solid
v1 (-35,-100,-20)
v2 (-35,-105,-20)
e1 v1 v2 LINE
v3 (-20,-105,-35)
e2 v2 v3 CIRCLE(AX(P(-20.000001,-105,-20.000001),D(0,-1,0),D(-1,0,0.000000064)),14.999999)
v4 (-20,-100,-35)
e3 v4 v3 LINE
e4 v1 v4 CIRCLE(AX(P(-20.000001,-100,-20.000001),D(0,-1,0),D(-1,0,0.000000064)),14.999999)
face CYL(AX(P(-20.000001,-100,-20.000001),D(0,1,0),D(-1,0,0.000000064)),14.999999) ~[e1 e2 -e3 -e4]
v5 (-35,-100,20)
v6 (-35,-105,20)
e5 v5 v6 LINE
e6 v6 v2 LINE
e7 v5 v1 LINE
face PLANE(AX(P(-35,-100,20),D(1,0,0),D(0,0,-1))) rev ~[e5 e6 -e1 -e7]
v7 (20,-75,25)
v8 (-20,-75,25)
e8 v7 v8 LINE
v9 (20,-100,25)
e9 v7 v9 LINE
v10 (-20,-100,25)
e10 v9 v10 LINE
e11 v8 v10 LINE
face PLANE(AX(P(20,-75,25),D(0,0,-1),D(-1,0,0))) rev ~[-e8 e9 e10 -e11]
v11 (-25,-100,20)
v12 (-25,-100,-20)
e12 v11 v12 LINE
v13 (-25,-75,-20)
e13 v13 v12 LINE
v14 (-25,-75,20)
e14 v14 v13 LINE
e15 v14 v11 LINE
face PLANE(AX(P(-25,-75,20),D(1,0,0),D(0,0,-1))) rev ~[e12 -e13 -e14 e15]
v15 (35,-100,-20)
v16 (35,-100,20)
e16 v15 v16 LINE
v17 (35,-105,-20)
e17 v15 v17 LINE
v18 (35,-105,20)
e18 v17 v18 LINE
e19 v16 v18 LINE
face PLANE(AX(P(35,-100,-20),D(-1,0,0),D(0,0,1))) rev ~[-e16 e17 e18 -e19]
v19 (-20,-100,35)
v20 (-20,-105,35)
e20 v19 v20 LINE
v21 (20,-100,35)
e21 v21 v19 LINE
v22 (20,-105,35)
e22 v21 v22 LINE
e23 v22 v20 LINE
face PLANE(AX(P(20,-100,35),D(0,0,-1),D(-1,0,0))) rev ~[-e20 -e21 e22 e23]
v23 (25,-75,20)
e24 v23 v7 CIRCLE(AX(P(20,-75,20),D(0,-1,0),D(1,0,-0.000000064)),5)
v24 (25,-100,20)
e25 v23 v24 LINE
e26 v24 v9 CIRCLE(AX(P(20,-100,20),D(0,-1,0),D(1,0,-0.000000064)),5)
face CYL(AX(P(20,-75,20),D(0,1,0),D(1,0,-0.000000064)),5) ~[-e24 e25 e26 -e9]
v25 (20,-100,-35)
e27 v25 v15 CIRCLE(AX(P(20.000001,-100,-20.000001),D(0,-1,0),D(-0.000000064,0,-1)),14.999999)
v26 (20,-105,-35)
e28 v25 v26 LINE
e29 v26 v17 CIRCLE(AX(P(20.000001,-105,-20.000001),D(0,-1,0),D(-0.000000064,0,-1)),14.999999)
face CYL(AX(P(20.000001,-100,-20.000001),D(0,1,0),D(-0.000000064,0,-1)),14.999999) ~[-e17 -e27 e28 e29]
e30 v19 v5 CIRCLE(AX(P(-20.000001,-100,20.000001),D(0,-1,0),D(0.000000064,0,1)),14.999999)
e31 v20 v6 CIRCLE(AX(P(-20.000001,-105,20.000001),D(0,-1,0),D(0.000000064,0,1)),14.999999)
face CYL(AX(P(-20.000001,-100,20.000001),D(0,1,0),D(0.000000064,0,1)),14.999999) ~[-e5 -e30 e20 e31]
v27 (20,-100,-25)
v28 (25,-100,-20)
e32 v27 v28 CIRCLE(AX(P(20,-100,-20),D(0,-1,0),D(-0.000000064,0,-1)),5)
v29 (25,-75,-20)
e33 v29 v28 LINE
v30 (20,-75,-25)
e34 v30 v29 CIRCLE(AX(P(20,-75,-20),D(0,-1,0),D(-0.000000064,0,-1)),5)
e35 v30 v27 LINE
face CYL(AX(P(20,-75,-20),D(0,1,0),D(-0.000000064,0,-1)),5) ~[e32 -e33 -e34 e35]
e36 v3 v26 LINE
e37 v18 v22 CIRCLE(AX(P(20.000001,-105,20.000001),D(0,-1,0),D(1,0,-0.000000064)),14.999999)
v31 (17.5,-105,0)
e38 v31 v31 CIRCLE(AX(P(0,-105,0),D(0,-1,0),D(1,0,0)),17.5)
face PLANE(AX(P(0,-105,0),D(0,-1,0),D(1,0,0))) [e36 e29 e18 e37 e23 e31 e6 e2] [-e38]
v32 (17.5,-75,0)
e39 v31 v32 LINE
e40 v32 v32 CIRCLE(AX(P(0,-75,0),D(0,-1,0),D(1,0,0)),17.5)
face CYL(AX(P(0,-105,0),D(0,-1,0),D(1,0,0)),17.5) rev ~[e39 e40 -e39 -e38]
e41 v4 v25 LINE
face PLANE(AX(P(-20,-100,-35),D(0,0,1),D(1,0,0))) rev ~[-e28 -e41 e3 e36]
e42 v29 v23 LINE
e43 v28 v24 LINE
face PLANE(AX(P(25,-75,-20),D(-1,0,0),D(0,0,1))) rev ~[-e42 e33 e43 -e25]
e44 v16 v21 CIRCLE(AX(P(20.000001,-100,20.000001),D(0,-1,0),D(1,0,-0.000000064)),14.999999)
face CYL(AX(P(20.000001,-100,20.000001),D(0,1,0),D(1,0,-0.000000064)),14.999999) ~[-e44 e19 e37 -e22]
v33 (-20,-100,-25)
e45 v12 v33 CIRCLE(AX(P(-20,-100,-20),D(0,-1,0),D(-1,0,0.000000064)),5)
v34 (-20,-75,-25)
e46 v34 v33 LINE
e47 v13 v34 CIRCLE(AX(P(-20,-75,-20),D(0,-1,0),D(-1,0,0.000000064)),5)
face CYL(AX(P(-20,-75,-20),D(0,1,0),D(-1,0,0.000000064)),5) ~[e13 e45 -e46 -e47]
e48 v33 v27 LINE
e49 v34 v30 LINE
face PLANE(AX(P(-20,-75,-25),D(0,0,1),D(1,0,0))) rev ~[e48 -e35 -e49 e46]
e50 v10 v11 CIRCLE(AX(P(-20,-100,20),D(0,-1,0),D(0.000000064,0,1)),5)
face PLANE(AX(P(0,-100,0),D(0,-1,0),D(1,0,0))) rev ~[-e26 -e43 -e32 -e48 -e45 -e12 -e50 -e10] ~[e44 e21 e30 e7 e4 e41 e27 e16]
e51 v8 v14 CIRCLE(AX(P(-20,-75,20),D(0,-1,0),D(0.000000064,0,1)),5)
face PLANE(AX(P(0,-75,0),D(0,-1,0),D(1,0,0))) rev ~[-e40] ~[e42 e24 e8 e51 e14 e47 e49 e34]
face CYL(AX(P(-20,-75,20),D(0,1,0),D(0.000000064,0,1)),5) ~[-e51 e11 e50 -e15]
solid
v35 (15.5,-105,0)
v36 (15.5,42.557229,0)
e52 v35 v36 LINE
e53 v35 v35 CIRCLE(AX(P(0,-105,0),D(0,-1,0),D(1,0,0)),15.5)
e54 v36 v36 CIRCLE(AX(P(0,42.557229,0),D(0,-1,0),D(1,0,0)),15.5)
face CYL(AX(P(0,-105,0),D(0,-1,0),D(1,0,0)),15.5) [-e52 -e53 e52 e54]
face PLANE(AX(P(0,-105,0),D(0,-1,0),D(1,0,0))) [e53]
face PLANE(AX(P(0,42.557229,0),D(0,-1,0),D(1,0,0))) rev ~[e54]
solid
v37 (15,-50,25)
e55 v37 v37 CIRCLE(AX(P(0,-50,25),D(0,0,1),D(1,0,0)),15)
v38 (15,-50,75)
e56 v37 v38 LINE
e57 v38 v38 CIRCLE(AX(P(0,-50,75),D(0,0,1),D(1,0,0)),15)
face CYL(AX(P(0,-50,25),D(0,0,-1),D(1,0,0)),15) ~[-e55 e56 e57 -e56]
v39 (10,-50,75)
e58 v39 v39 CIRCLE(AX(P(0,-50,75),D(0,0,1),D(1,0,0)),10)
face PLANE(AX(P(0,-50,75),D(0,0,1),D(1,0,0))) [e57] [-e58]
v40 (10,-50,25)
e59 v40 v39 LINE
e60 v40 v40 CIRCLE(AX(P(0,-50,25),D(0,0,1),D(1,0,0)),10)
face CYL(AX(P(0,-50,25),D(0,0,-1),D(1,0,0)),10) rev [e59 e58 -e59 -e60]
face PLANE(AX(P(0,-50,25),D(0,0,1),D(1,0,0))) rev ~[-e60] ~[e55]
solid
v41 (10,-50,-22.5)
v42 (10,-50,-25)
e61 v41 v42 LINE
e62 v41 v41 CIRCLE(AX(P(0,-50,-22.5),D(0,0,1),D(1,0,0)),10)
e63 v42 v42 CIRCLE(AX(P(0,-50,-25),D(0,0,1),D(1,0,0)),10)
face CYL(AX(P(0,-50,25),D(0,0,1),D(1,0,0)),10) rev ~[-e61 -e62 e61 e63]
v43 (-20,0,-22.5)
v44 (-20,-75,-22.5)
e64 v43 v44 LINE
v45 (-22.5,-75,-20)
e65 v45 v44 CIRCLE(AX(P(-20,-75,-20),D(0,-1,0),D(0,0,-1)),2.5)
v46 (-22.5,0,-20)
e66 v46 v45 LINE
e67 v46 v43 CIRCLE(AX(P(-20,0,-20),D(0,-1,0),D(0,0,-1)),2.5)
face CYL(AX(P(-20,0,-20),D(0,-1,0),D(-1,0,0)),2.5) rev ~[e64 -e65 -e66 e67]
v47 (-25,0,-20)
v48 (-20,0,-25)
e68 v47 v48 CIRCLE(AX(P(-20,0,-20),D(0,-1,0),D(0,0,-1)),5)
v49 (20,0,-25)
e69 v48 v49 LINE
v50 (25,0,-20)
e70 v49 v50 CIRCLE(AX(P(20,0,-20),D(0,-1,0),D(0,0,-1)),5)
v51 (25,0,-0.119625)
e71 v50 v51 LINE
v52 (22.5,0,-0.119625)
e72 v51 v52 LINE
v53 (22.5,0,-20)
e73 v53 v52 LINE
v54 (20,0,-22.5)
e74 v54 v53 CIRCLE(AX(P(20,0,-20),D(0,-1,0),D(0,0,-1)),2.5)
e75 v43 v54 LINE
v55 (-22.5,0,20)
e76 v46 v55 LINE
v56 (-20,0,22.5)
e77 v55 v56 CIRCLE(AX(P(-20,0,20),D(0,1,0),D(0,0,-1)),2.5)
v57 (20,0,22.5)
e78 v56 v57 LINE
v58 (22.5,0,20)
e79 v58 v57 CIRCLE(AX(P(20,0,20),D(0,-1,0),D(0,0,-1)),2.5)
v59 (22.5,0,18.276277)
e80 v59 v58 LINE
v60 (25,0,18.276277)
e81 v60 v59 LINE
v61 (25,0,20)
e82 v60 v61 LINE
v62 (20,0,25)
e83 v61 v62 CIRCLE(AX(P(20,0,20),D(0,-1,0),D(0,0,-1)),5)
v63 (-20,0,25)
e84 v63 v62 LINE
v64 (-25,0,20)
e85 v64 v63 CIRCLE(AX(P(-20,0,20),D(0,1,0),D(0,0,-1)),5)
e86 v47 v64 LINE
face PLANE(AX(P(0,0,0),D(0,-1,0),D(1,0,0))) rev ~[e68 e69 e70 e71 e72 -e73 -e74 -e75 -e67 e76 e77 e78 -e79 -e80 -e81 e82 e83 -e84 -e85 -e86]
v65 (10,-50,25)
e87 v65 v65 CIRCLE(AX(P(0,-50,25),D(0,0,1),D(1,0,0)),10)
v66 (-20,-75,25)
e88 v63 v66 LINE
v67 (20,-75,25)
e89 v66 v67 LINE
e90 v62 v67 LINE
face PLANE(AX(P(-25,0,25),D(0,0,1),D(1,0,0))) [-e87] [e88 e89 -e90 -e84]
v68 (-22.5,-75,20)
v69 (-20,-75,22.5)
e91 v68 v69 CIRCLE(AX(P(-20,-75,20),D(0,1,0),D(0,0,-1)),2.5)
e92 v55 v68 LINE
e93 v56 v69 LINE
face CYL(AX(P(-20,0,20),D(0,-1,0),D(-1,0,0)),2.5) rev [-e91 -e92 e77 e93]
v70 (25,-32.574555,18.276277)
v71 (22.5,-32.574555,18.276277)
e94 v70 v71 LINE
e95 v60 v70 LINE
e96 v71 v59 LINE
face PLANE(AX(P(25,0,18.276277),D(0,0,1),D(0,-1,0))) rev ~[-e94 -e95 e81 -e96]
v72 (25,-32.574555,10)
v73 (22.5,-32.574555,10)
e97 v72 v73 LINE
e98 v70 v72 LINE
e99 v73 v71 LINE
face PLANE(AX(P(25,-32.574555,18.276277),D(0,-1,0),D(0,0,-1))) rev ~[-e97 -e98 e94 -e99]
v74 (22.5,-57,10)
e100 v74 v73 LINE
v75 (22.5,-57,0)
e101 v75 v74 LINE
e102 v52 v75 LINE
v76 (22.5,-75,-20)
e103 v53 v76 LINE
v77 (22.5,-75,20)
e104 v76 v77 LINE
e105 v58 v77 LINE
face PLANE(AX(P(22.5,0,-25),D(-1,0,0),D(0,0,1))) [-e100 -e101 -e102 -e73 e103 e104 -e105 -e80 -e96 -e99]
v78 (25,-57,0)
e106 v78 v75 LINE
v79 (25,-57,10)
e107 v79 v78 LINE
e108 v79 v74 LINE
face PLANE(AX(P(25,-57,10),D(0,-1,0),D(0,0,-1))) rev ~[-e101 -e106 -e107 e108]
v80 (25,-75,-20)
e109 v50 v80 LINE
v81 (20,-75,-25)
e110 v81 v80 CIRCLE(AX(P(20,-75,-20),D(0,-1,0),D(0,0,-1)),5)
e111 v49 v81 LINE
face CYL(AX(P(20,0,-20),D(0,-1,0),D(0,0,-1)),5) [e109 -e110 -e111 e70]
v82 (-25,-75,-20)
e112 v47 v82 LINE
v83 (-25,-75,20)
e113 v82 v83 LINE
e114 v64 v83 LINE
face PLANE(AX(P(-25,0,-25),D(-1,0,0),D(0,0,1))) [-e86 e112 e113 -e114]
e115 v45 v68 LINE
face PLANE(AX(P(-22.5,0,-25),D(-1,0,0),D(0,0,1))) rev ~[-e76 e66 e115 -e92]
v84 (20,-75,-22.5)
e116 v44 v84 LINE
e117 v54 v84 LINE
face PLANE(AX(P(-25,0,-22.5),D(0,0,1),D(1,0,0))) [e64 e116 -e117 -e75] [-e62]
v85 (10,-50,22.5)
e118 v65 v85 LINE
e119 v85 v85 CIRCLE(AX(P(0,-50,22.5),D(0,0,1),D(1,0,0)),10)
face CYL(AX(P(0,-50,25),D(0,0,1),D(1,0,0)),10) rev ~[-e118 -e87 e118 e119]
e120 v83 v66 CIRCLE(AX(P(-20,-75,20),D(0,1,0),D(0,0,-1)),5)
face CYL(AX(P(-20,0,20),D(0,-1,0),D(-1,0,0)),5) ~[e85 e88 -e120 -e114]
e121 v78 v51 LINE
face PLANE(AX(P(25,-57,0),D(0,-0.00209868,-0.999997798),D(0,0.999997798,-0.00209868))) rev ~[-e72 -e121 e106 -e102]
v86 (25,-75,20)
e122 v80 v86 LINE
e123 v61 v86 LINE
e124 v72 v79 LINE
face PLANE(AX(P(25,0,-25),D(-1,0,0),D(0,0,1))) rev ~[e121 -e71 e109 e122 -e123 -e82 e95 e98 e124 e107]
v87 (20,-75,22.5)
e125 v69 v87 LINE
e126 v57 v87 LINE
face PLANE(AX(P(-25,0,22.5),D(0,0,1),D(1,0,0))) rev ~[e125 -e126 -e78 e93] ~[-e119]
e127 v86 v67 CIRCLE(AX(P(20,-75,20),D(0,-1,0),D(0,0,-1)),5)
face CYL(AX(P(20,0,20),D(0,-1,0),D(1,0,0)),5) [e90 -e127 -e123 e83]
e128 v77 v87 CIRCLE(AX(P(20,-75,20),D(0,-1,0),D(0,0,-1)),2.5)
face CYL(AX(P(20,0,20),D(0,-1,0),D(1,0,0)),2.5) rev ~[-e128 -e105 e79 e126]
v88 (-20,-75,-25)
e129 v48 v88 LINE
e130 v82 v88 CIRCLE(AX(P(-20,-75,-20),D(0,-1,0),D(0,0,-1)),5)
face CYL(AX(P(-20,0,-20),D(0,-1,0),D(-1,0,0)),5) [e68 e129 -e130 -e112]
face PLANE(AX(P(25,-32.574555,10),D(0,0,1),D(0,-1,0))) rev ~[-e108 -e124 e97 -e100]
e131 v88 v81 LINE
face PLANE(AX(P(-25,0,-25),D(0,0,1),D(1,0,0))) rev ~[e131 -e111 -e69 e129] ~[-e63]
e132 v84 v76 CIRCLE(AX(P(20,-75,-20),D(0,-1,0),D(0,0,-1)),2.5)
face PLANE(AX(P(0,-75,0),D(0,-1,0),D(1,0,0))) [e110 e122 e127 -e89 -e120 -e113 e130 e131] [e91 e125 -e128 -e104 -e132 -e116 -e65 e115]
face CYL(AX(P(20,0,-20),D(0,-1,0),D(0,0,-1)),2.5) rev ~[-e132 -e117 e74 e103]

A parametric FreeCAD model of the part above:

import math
import FreeCAD as App
import Part
import Sketcher

V = App.Vector


def edges_at(feature, points):
    """Names of the edges that pass closest to the given points."""
    edges = feature.Shape.Edges
    near = lambda p: min(range(len(edges)), key=lambda i: edges[i].distToShape(Part.Vertex(*p))[0])
    return sorted({f"Edge{near(p) + 1}" for p in points})


def faces_at(feature, points):
    """Names of the faces that lie closest to the given points."""
    faces = feature.Shape.Faces
    near = lambda p: min(range(len(faces)), key=lambda i: faces[i].distToShape(Part.Vertex(*p))[0])
    return sorted({f"Face{near(p) + 1}" for p in points})


def add_polygon(sketch, points):
    """Adds a closed chain of lines whose ends are joined by coincident constraints."""
    first, n = sketch.GeometryCount, len(points)
    for a, b in zip(points, points[1:] + points[:1]):
        sketch.addGeometry(Part.LineSegment(App.Vector(*a, 0), App.Vector(*b, 0)), False)
    for i in range(n):
        sketch.addConstraint(Sketcher.Constraint("Coincident", first + i, 2, first + (i + 1) % n, 1))

doc = App.newDocument("Part")
body = doc.addObject("PartDesign::Body", "Body")

# Sketch on XZ plane
sketch1 = body.newObject("Sketcher::SketchObject", "Sketch")
sketch1.AttachmentSupport = (doc.getObject("XZ_Plane"), [""])
sketch1.MapMode = "FlatFace"
add_polygon(sketch1, [(-25, 25), (-25, -25), (25, -25), (25, 25)])  # lines 0-3
sketch1.addConstraint(Sketcher.Constraint("Vertical", 0))
sketch1.addConstraint(Sketcher.Constraint("Horizontal", 1))
sketch1.addConstraint(Sketcher.Constraint("Vertical", 2))
sketch1.addConstraint(Sketcher.Constraint("Horizontal", 3))
sketch1.addConstraint(Sketcher.Constraint("Symmetric", 0, 2, 2, 2, -1, 1))
sketch1.addConstraint(Sketcher.Constraint("Equal", 3, 0))
sketch1.addConstraint(Sketcher.Constraint("DistanceX", 1, 1, 1, 2, 50.0))
pad1 = body.newObject("PartDesign::Pad", "Pad")
pad1.Profile = sketch1
pad1.Length = 75
doc.recompute()

fillet = body.newObject("PartDesign::Fillet", "Fillet")
fillet.Base = (pad1, edges_at(pad1, [
    (-25, -37.5, -25),
    (25, -37.5, -25),
    (-25, -37.5, 25),
    (25, -37.5, 25),
]))
fillet.Radius = 5
doc.recompute()

thickness = body.newObject("PartDesign::Thickness", "Thickness")
thickness.Base = (fillet, faces_at(fillet, [(0, -75, 0), (0, 0, 0)]))
thickness.Value = 2.5
thickness.Reversed = True
thickness.Join = "Arc"

# Sketch on XY plane
sketch2 = body.newObject("Sketcher::SketchObject", "Sketch001")
sketch2.AttachmentSupport = (doc.getObject("XY_Plane"), [""])
sketch2.MapMode = "FlatFace"
sketch2.AttachmentOffset = App.Placement(V(0, 0, 25), App.Rotation())
sketch2.addGeometry(Part.Circle(V(0, -50, 0), V(0, 0, 1), 10), False)
sketch2.addConstraint(Sketcher.Constraint("PointOnObject", 0, 3, -2))
sketch2.addConstraint(Sketcher.Constraint("Diameter", 0, 20.0))
sketch2.addConstraint(Sketcher.Constraint("DistanceY", 0, 3, -1, 1, 50.0))
pocket1 = body.newObject("PartDesign::Pocket", "Pocket")
pocket1.Profile = sketch2
pocket1.Type = "ThroughAll"

# Sketch on YZ plane
sketch3 = body.newObject("Sketcher::SketchObject", "Sketch002")
sketch3.AttachmentSupport = (doc.getObject("YZ_Plane"), [""])
sketch3.MapMode = "FlatFace"
sketch3.AttachmentOffset = App.Placement(V(0, 0, 25), App.Rotation())
add_polygon(sketch3, [(-57, 10), (-57, 0), (0, -0.119625), (0, 18.276277), (-32.574555, 18.276277), (-32.574555, 10)])  # lines 0-5
sketch3.addConstraint(Sketcher.Constraint("Vertical", 0))
sketch3.addConstraint(Sketcher.Constraint("Vertical", 2))
sketch3.addConstraint(Sketcher.Constraint("Horizontal", 3))
sketch3.addConstraint(Sketcher.Constraint("Vertical", 4))
sketch3.addConstraint(Sketcher.Constraint("Horizontal", 5))
sketch3.addConstraint(Sketcher.Constraint("PointOnObject", 0, 2, -1))
sketch3.addConstraint(Sketcher.Constraint("PointOnObject", 1, 2, -2))
sketch3.addConstraint(Sketcher.Constraint("DistanceY", 0, 2, 0, 1, 10.0))
sketch3.addConstraint(Sketcher.Constraint("DistanceX", 0, 2, -1, 1, 57.0))
sketch3.addConstraint(Sketcher.Constraint("DistanceY", 2, 1, 2, 2, 18.395902))
sketch3.addConstraint(Sketcher.Constraint("DistanceX", 3, 2, 3, 1, 32.574555))
sketch3.addConstraint(Sketcher.Constraint("DistanceY", 4, 2, 4, 1, 8.276277))
pocket2 = body.newObject("PartDesign::Pocket", "Pocket001")
pocket2.Profile = sketch3
pocket2.Length = 3
body2 = doc.addObject("PartDesign::Body", "Body001")

# Sketch on XZ plane
sketch4 = body2.newObject("Sketcher::SketchObject", "Sketch003")
sketch4.AttachmentSupport = (doc.getObject("XZ_Plane001"), [""])
sketch4.MapMode = "FlatFace"
sketch4.AttachmentOffset = App.Placement(V(0, 0, 75), App.Rotation())
sketch4.addGeometry(Part.ArcOfCircle(Part.Circle(V(20, 20, 0), V(0, 0, 1), 5), math.radians(-0.000004), math.radians(90.000004)), False)
sketch4.addGeometry(Part.LineSegment(V(20, 25, 0), V(-20, 25, 0)), False)
sketch4.addGeometry(Part.ArcOfCircle(Part.Circle(V(-20, 20, 0), V(0, 0, 1), 5), math.radians(89.999996), math.radians(180.000004)), False)
sketch4.addGeometry(Part.LineSegment(V(-25, 20, 0), V(-25, -20, 0)), False)
sketch4.addGeometry(Part.ArcOfCircle(Part.Circle(V(-20, -20, 0), V(0, 0, 1), 5), math.radians(179.999996), math.radians(270.000004)), False)
sketch4.addGeometry(Part.LineSegment(V(-20, -25, 0), V(20, -25, 0)), False)
sketch4.addGeometry(Part.ArcOfCircle(Part.Circle(V(20, -20, 0), V(0, 0, 1), 5), math.radians(-90.000004), math.radians(0.000004)), False)
sketch4.addGeometry(Part.LineSegment(V(25, -20, 0), V(25, 20, 0)), False)
sketch4.addConstraint(Sketcher.Constraint("Tangent", 0, 2, 1, 1))
sketch4.addConstraint(Sketcher.Constraint("Tangent", 1, 2, 2, 1))
sketch4.addConstraint(Sketcher.Constraint("Tangent", 2, 2, 3, 1))
sketch4.addConstraint(Sketcher.Constraint("Tangent", 3, 2, 4, 1))
sketch4.addConstraint(Sketcher.Constraint("Tangent", 4, 2, 5, 1))
sketch4.addConstraint(Sketcher.Constraint("Tangent", 5, 2, 6, 1))
sketch4.addConstraint(Sketcher.Constraint("Tangent", 6, 2, 7, 1))
sketch4.addConstraint(Sketcher.Constraint("Tangent", 7, 2, 0, 1))
sketch4.addConstraint(Sketcher.Constraint("Horizontal", 1))
sketch4.addConstraint(Sketcher.Constraint("Vertical", 3))
sketch4.addConstraint(Sketcher.Constraint("Horizontal", 5))
sketch4.addConstraint(Sketcher.Constraint("Vertical", 7))
sketch4.addConstraint(Sketcher.Constraint("Equal", 0, 2))
sketch4.addConstraint(Sketcher.Constraint("Equal", 2, 4))
sketch4.addConstraint(Sketcher.Constraint("Equal", 4, 6))
sketch4.addConstraint(Sketcher.Constraint("Symmetric", 0, 3, 4, 3, -1, 1))
sketch4.addConstraint(Sketcher.Constraint("Equal", 5, 3))
sketch4.addConstraint(Sketcher.Constraint("Radius", 0, 5.0))
sketch4.addConstraint(Sketcher.Constraint("DistanceX", 1, 2, 1, 1, 40.0))
pad2 = body2.newObject("PartDesign::Pad", "Pad001")
pad2.Profile = sketch4
pad2.Length = 25

# Sketch on XZ plane
sketch5 = body2.newObject("Sketcher::SketchObject", "Sketch004")
sketch5.AttachmentSupport = (doc.getObject("XZ_Plane001"), [""])
sketch5.MapMode = "FlatFace"
sketch5.AttachmentOffset = App.Placement(V(0, 0, 100), App.Rotation())
sketch5.addGeometry(Part.LineSegment(V(35, -20, 0), V(35, 20, 0)), False)
sketch5.addGeometry(Part.ArcOfCircle(Part.Circle(V(20.000001, 20.000001, 0), V(0, 0, 1), 14.999999), math.radians(-0.000004), math.radians(90.000004)), False)
sketch5.addGeometry(Part.LineSegment(V(20, 35, 0), V(-20, 35, 0)), False)
sketch5.addGeometry(Part.ArcOfCircle(Part.Circle(V(-20.000001, 20.000001, 0), V(0, 0, 1), 14.999999), math.radians(89.999996), math.radians(180.000004)), False)
sketch5.addGeometry(Part.LineSegment(V(-35, 20, 0), V(-35, -20, 0)), False)
sketch5.addGeometry(Part.ArcOfCircle(Part.Circle(V(-20.000001, -20.000001, 0), V(0, 0, 1), 14.999999), math.radians(179.999996), math.radians(270.000004)), False)
sketch5.addGeometry(Part.LineSegment(V(-20, -35, 0), V(20, -35, 0)), False)
sketch5.addGeometry(Part.ArcOfCircle(Part.Circle(V(20.000001, -20.000001, 0), V(0, 0, 1), 14.999999), math.radians(-90.000004), math.radians(0.000004)), False)
sketch5.addConstraint(Sketcher.Constraint("Tangent", 0, 2, 1, 1))
sketch5.addConstraint(Sketcher.Constraint("Tangent", 1, 2, 2, 1))
sketch5.addConstraint(Sketcher.Constraint("Tangent", 2, 2, 3, 1))
sketch5.addConstraint(Sketcher.Constraint("Tangent", 3, 2, 4, 1))
sketch5.addConstraint(Sketcher.Constraint("Tangent", 4, 2, 5, 1))
sketch5.addConstraint(Sketcher.Constraint("Tangent", 5, 2, 6, 1))
sketch5.addConstraint(Sketcher.Constraint("Tangent", 6, 2, 7, 1))
sketch5.addConstraint(Sketcher.Constraint("Tangent", 7, 2, 0, 1))
sketch5.addConstraint(Sketcher.Constraint("Vertical", 0))
sketch5.addConstraint(Sketcher.Constraint("Horizontal", 2))
sketch5.addConstraint(Sketcher.Constraint("Vertical", 4))
sketch5.addConstraint(Sketcher.Constraint("Horizontal", 6))
sketch5.addConstraint(Sketcher.Constraint("Equal", 1, 3))
sketch5.addConstraint(Sketcher.Constraint("Equal", 3, 5))
sketch5.addConstraint(Sketcher.Constraint("Equal", 5, 7))
sketch5.addConstraint(Sketcher.Constraint("Symmetric", 1, 3, 5, 3, -1, 1))
sketch5.addConstraint(Sketcher.Constraint("Equal", 6, 0))
sketch5.addConstraint(Sketcher.Constraint("Radius", 1, 14.999999))
sketch5.addConstraint(Sketcher.Constraint("DistanceX", 2, 2, 2, 1, 40.0))
pad3 = body2.newObject("PartDesign::Pad", "Pad002")
pad3.Profile = sketch5
pad3.Length = 5

# Sketch on XZ plane
sketch6 = body2.newObject("Sketcher::SketchObject", "Sketch005")
sketch6.AttachmentSupport = (doc.getObject("XZ_Plane001"), [""])
sketch6.MapMode = "FlatFace"
sketch6.AttachmentOffset = App.Placement(V(0, 0, 105), App.Rotation())
sketch6.addGeometry(Part.Circle(V(0, 0, 0), V(0, 0, 1), 17.5), False)
sketch6.addConstraint(Sketcher.Constraint("Coincident", 0, 3, -1, 1))
sketch6.addConstraint(Sketcher.Constraint("Diameter", 0, 35.0))
pocket3 = body2.newObject("PartDesign::Pocket", "Pocket002")
pocket3.Profile = sketch6
pocket3.Type = "ThroughAll"
body3 = doc.addObject("PartDesign::Body", "Body002")

# Sketch on XZ plane
sketch7 = body3.newObject("Sketcher::SketchObject", "Sketch006")
sketch7.AttachmentSupport = (doc.getObject("XZ_Plane002"), [""])
sketch7.MapMode = "FlatFace"
sketch7.AttachmentOffset = App.Placement(V(0, 0, 105), App.Rotation())
sketch7.addGeometry(Part.Circle(V(0, 0, 0), V(0, 0, 1), 15.5), False)
sketch7.addConstraint(Sketcher.Constraint("Coincident", 0, 3, -1, 1))
sketch7.addConstraint(Sketcher.Constraint("Diameter", 0, 31.0))
pad4 = body3.newObject("PartDesign::Pad", "Pad003")
pad4.Profile = sketch7
pad4.Length = 147.557229
pad4.Reversed = True
body4 = doc.addObject("PartDesign::Body", "Body003")

# Sketch on XY plane
sketch8 = body4.newObject("Sketcher::SketchObject", "Sketch007")
sketch8.AttachmentSupport = (doc.getObject("XY_Plane003"), [""])
sketch8.MapMode = "FlatFace"
sketch8.AttachmentOffset = App.Placement(V(0, 0, 25), App.Rotation())
sketch8.addGeometry(Part.Circle(V(0, -50, 0), V(0, 0, 1), 15), False)
sketch8.addGeometry(Part.Circle(V(0, -50, 0), V(0, 0, 1), 10), False)
sketch8.addConstraint(Sketcher.Constraint("Coincident", 1, 3, 0, 3))
sketch8.addConstraint(Sketcher.Constraint("PointOnObject", 0, 3, -2))
sketch8.addConstraint(Sketcher.Constraint("Diameter", 0, 30.0))
sketch8.addConstraint(Sketcher.Constraint("Diameter", 1, 20.0))
sketch8.addConstraint(Sketcher.Constraint("DistanceY", 0, 3, -1, 1, 50.0))
pad5 = body4.newObject("PartDesign::Pad", "Pad004")
pad5.Profile = sketch8
pad5.Length = 50

doc.recompute()
